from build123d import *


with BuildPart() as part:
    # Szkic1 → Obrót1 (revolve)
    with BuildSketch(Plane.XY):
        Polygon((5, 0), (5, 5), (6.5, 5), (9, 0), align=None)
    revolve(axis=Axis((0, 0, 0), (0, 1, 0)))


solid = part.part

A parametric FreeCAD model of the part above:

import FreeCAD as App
import Part
import Sketcher

V = App.Vector


def add_polygon(sketch, points):
    """Adds a closed chain of lines whose ends are joined by coincident constraints."""
    first, n = sketch.GeometryCount, len(points)
    for a, b in zip(points, points[1:] + points[:1]):
        sketch.addGeometry(Part.LineSegment(App.Vector(*a, 0), App.Vector(*b, 0)), False)
    for i in range(n):
        sketch.addConstraint(Sketcher.Constraint("Coincident", first + i, 2, first + (i + 1) % n, 1))

doc = App.newDocument("Part")
body = doc.addObject("PartDesign::Body", "Body")

# Sketch on XY plane
sketch1 = doc.addObject("Sketcher::SketchObject", "Sketch")
body.addObject(sketch1)
sketch1.AttachmentSupport = (doc.XY_Plane, [""])
sketch1.MapMode = "FlatFace"
add_polygon(sketch1, [(5, 5), (5, 0), (9, 0), (6.5, 5)])  # lines 0-3
sketch1.addConstraint([
    Sketcher.Constraint("Vertical", 0),
    Sketcher.Constraint("Horizontal", 1),
    Sketcher.Constraint("Horizontal", 3),
    Sketcher.Constraint("PointOnObject", 0, 2, -1),
    Sketcher.Constraint("DistanceX", 1, 1, 1, 2, 4.0),
    Sketcher.Constraint("DistanceY", 0, 2, 0, 1, 5.0),
    Sketcher.Constraint("DistanceX", 3, 2, 3, 1, 1.5),
    Sketcher.Constraint("DistanceX", -1, 1, 0, 2, 5.0),
])
revolution = doc.addObject("PartDesign::Revolution", "Revolution")
body.addObject(revolution)
revolution.Profile = sketch1
revolution.ReferenceAxis = (sketch1, ["V_Axis"])
revolution.Angle = 360

doc.recompute()
